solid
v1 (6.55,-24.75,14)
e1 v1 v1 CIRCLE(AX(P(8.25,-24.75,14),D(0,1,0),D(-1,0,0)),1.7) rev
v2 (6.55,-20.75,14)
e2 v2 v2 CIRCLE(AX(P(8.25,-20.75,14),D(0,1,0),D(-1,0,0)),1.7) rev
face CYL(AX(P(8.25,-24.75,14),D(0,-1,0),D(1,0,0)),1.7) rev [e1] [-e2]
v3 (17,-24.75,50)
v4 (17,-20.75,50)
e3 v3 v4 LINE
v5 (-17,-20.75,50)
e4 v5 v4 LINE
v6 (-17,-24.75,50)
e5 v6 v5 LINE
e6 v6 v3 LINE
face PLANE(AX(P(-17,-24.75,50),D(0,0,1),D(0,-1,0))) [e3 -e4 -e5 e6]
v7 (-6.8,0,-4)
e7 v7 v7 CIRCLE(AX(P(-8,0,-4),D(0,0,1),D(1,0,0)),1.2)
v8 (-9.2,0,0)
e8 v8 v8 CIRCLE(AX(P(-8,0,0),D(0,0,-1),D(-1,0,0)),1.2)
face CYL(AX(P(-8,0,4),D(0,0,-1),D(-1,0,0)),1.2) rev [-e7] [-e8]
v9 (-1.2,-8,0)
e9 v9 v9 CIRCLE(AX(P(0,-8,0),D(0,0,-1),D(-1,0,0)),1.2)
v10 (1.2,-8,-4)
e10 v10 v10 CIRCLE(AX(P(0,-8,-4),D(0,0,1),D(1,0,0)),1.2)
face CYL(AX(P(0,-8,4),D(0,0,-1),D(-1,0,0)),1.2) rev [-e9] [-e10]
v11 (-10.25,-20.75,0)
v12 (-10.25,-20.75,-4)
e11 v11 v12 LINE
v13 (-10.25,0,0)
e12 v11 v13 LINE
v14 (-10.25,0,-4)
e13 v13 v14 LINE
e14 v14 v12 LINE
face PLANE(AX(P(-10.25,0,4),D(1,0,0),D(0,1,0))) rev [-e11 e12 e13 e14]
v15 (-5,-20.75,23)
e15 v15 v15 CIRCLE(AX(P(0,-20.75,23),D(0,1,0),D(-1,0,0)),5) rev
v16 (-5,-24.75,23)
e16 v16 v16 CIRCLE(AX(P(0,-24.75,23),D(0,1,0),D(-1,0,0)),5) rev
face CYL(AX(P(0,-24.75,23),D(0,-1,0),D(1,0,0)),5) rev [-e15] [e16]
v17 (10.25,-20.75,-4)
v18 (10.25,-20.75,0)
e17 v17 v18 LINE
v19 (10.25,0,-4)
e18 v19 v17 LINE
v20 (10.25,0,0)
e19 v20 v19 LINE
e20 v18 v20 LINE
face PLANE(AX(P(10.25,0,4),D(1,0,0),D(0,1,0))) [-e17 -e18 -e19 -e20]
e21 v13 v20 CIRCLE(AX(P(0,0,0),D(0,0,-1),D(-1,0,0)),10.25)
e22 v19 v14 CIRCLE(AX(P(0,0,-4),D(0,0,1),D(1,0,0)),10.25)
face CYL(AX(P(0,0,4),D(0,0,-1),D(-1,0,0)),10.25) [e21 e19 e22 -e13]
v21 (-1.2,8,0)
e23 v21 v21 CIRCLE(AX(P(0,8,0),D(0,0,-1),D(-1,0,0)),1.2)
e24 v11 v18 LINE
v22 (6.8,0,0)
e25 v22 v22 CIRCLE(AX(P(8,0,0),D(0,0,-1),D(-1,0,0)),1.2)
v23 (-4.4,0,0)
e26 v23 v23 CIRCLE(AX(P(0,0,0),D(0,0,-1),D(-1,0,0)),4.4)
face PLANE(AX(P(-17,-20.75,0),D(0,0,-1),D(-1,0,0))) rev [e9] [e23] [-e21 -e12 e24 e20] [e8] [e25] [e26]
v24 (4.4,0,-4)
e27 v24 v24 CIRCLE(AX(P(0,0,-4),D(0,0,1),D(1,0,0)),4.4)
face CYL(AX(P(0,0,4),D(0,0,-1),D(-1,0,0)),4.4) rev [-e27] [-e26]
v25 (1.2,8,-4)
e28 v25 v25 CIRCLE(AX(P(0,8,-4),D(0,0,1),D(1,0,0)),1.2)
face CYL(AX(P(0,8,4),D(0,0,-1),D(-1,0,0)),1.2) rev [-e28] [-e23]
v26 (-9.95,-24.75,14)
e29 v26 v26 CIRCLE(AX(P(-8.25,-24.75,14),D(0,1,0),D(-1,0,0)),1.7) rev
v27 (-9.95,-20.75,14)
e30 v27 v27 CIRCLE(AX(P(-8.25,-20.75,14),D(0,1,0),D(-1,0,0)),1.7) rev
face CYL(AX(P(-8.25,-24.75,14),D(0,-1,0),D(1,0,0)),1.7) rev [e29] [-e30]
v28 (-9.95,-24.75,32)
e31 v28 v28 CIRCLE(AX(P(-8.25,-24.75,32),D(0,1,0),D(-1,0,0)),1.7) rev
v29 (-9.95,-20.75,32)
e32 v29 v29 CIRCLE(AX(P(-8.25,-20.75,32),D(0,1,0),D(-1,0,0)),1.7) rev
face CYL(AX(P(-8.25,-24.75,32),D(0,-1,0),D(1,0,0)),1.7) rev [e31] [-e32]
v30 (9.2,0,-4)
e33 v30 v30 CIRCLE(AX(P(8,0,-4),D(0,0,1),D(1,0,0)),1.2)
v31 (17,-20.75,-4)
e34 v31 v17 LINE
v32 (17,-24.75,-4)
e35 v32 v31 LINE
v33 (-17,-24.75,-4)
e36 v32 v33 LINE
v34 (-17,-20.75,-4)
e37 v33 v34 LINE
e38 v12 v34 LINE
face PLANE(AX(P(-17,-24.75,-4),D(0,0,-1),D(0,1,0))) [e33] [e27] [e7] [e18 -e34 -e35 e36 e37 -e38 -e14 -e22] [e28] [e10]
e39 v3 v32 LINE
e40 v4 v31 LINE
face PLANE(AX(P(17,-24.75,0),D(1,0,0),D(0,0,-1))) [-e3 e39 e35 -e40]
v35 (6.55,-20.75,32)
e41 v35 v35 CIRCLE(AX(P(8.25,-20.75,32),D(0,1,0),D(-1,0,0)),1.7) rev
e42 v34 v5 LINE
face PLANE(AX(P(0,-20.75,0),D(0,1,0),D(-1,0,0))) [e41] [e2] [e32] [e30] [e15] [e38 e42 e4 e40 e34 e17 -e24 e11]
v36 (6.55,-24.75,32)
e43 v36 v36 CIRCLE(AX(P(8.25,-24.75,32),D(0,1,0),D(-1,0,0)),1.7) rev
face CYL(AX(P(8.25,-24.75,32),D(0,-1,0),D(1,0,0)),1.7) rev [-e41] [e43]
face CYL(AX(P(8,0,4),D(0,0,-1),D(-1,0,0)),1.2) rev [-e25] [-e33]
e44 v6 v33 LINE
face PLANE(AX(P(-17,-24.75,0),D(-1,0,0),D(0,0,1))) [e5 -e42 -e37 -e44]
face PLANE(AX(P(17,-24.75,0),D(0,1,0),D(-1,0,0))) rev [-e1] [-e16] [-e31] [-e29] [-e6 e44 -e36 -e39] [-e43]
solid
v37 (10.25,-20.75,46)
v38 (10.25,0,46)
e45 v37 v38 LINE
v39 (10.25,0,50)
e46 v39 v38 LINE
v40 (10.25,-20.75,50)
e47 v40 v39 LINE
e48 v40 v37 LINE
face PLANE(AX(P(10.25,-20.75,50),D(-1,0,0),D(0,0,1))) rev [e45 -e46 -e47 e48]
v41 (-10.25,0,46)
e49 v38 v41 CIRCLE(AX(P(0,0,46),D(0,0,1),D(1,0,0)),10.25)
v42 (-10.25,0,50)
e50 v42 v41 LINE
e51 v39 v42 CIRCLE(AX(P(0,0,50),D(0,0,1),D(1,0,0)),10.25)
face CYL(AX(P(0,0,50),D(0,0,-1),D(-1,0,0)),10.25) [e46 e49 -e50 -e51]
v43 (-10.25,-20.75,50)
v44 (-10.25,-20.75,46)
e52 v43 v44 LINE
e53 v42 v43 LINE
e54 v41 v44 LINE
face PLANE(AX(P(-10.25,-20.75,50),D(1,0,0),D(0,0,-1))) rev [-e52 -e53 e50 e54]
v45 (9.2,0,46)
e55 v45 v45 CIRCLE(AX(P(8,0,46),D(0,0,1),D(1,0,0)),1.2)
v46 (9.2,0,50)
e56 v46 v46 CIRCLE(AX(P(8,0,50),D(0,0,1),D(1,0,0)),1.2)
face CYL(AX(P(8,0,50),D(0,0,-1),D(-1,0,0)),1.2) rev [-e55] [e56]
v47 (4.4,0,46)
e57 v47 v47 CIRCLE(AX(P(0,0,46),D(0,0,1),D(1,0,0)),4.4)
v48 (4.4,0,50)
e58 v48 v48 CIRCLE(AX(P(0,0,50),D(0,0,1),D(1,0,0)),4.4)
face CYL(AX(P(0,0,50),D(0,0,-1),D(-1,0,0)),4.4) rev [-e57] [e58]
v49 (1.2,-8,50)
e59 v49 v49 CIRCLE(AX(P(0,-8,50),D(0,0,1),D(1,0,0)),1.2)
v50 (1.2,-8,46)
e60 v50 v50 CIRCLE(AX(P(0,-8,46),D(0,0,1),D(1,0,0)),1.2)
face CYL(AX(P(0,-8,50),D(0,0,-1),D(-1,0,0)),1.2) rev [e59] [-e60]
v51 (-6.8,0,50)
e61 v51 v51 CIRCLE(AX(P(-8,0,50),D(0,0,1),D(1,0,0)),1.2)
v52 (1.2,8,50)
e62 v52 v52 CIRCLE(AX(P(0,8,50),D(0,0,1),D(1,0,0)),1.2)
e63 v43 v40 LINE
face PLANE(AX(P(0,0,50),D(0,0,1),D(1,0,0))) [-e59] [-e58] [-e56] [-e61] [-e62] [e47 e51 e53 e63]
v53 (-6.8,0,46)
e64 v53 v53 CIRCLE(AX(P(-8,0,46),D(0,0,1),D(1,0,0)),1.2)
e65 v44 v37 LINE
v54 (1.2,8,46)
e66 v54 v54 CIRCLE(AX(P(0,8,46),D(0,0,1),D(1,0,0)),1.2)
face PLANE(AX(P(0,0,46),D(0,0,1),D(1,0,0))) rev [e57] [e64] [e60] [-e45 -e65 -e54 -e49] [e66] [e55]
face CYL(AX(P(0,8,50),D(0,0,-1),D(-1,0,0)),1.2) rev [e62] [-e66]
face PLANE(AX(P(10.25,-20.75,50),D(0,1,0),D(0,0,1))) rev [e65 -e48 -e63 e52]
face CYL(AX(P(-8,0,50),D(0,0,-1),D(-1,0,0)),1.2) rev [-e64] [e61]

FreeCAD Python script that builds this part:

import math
import FreeCAD as App
import Part
import Sketcher
from FreeCAD import Vector

doc = App.newDocument("Part")
body = doc.addObject("PartDesign::Body", "Body")

# Sketch on XY plane
sketch1 = doc.addObject("Sketcher::SketchObject", "Sketch")
body.addObject(sketch1)
sketch1.AttachmentSupport = (doc.XY_Plane, [""])
sketch1.MapMode = "FlatFace"
sketch1.addGeometry([
    Part.LineSegment(Vector(-10.25, -28.75, 0), Vector(10.25, -28.75, 0)),  # 0
    Part.LineSegment(Vector(10.25, -28.75, 0), Vector(10.25, 0, 0)),  # 1
    Part.ArcOfCircle(Part.Circle(Vector(0, 0, 0), Vector(0, 0, 1), 10.25), math.radians(0), math.radians(180)),  # 2
    Part.LineSegment(Vector(-10.25, 0, 0), Vector(-10.25, -28.75, 0)),  # 3
    Part.Circle(Vector(-8, 0, 0), Vector(0, 0, 1), 1.2),  # 4
    Part.Circle(Vector(0, -8, 0), Vector(0, 0, 1), 1.2),  # 5
    Part.Circle(Vector(0, 0, 0), Vector(0, 0, 1), 4.4),  # 6
    Part.Circle(Vector(8, 0, 0), Vector(0, 0, 1), 1.2),  # 7
    Part.Circle(Vector(0, 8, 0), Vector(0, 0, 1), 1.2),  # 8
], False)
sketch1.addConstraint([
    Sketcher.Constraint("Coincident", 0, 2, 1, 1),
    Sketcher.Constraint("Tangent", 1, 2, 2, 1),
    Sketcher.Constraint("Tangent", 2, 2, 3, 1),
    Sketcher.Constraint("Coincident", 3, 2, 0, 1),
    Sketcher.Constraint("Horizontal", 0),
    Sketcher.Constraint("Vertical", 1),
    Sketcher.Constraint("Vertical", 3),
    Sketcher.Constraint("Coincident", 2, 3, -1, 1),
    Sketcher.Constraint("Coincident", 6, 3, -1, 1),
    Sketcher.Constraint("Equal", 4, 5),
    Sketcher.Constraint("Equal", 5, 7),
    Sketcher.Constraint("Equal", 7, 8),
    Sketcher.Constraint("Symmetric", 4, 3, 7, 3, -1, 1),
    Sketcher.Constraint("Symmetric", 5, 3, 8, 3, -1, 1),
    Sketcher.Constraint("PointOnObject", 4, 3, -1),
    Sketcher.Constraint("PointOnObject", 5, 3, -2),
    Sketcher.Constraint("Diameter", 4, 2.4),
    Sketcher.Constraint("Diameter", 6, 8.8),
    Sketcher.Constraint("Radius", 2, 10.25),
    Sketcher.Constraint("DistanceX", 4, 3, -1, 1, 8.0),
    Sketcher.Constraint("DistanceY", 5, 3, -1, 1, 8.0),
    Sketcher.Constraint("DistanceY", 1, 1, 1, 2, 28.75),
])
pad1 = doc.addObject("PartDesign::Pad", "Pad")
body.addObject(pad1)
pad1.Profile = sketch1
pad1.Length = 4

# Sketch on XZ plane
sketch2 = doc.addObject("Sketcher::SketchObject", "Sketch001")
body.addObject(sketch2)
sketch2.AttachmentSupport = (doc.XZ_Plane, [""])
sketch2.MapMode = "FlatFace"
sketch2.AttachmentOffset = App.Placement(Vector(0, 0, 28.75), App.Rotation())
sketch2.addGeometry([
    Part.LineSegment(Vector(17, 0, 0), Vector(17, 46, 0)),  # 0
    Part.LineSegment(Vector(17, 46, 0), Vector(-17, 46, 0)),  # 1
    Part.LineSegment(Vector(-17, 46, 0), Vector(-17, 0, 0)),  # 2
    Part.LineSegment(Vector(-17, 0, 0), Vector(17, 0, 0)),  # 3
    Part.Circle(Vector(8.25, 32, 0), Vector(0, 0, 1), 1.7),  # 4
    Part.Circle(Vector(-8.25, 32, 0), Vector(0, 0, 1), 1.7),  # 5
    Part.Circle(Vector(8.25, 14, 0), Vector(0, 0, 1), 1.7),  # 6
    Part.Circle(Vector(0, 23, 0), Vector(0, 0, 1), 5),  # 7
    Part.Circle(Vector(-8.25, 14, 0), Vector(0, 0, 1), 1.7),  # 8
], False)
sketch2.addConstraint([
    Sketcher.Constraint("Coincident", 0, 2, 1, 1),
    Sketcher.Constraint("Coincident", 1, 2, 2, 1),
    Sketcher.Constraint("Coincident", 2, 2, 3, 1),
    Sketcher.Constraint("Coincident", 3, 2, 0, 1),
    Sketcher.Constraint("Vertical", 0),
    Sketcher.Constraint("Horizontal", 1),
    Sketcher.Constraint("Vertical", 2),
    Sketcher.Constraint("Horizontal", 3),
    Sketcher.Constraint("Equal", 4, 5),
    Sketcher.Constraint("Equal", 5, 6),
    Sketcher.Constraint("Equal", 6, 8),
    Sketcher.Constraint("Symmetric", 2, 2, 3, 2, -1, 1),
    Sketcher.Constraint("Symmetric", 4, 3, 5, 3, -2),
    Sketcher.Constraint("Symmetric", 6, 3, 8, 3, -2),
    Sketcher.Constraint("PointOnObject", 7, 3, -2),
    Sketcher.Constraint("Vertical", 4, 3, 6, 3),
    Sketcher.Constraint("Diameter", 7, 10.0),
    Sketcher.Constraint("Diameter", 4, 3.4),
    Sketcher.Constraint("DistanceX", 1, 2, 1, 1, 34.0),
    Sketcher.Constraint("DistanceY", 0, 1, 0, 2, 46.0),
    Sketcher.Constraint("DistanceY", -1, 1, 4, 3, 32.0),
    Sketcher.Constraint("DistanceY", -1, 1, 6, 3, 14.0),
    Sketcher.Constraint("DistanceY", -1, 1, 7, 3, 23.0),
    Sketcher.Constraint("DistanceX", 5, 3, 4, 3, 16.5),
])
pad2 = doc.addObject("PartDesign::Pad", "Pad001")
body.addObject(pad2)
pad2.Profile = sketch2
pad2.Length = 4
pad2.Reversed = True
doc.recompute()

datumplane = doc.addObject("PartDesign::Plane", "DatumPlane")
body.addObject(datumplane)
datumplane.AttachmentSupport = (doc.XY_Plane, [""])
datumplane.MapMode = "FlatFace"
datumplane.AttachmentOffset = App.Placement(Vector(0, 0, 23), App.Rotation())
mirrored = doc.addObject("PartDesign::Mirrored", "Mirrored")
body.addObject(mirrored)
mirrored.Originals = [pad1]
mirrored.MirrorPlane = (datumplane, [""])
body.Tip = mirrored

# Sketch on XZ plane
sketch3 = doc.addObject("Sketcher::SketchObject", "Sketch002")
body.addObject(sketch3)
sketch3.AttachmentSupport = (doc.XZ_Plane, [""])
sketch3.MapMode = "FlatFace"
sketch3.AttachmentOffset = App.Placement(Vector(0, 0, 24.75), App.Rotation())
sketch3.addGeometry([
    Part.LineSegment(Vector(-10.25, 42, 0), Vector(10.25, 42, 0)),  # 0
    Part.LineSegment(Vector(10.25, 42, 0), Vector(10.25, 46, 0)),  # 1
    Part.LineSegment(Vector(10.25, 46, 0), Vector(17, 46, 0)),  # 2
    Part.LineSegment(Vector(17, 46, 0), Vector(17, 0, 0)),  # 3
    Part.LineSegment(Vector(17, 0, 0), Vector(10.25, 0, 0)),  # 4
    Part.LineSegment(Vector(10.25, 0, 0), Vector(10.25, 4, 0)),  # 5
    Part.LineSegment(Vector(10.25, 4, 0), Vector(-10.25, 4, 0)),  # 6
    Part.LineSegment(Vector(-10.25, 4, 0), Vector(-10.25, 0, 0)),  # 7
    Part.LineSegment(Vector(-10.25, 0, 0), Vector(-17, 0, 0)),  # 8
    Part.LineSegment(Vector(-17, 0, 0), Vector(-17, 46, 0)),  # 9
    Part.LineSegment(Vector(-17, 46, 0), Vector(-10.25, 46, 0)),  # 10
    Part.LineSegment(Vector(-10.25, 46, 0), Vector(-10.25, 42, 0)),  # 11
    Part.Circle(Vector(-8.25, 32, 0), Vector(0, 0, 1), 1.7),  # 12
    Part.Circle(Vector(8.25, 32, 0), Vector(0, 0, 1), 1.7),  # 13
    Part.Circle(Vector(-8.25, 14, 0), Vector(0, 0, 1), 1.7),  # 14
    Part.Circle(Vector(0, 23, 0), Vector(0, 0, 1), 5),  # 15
    Part.Circle(Vector(8.25, 14, 0), Vector(0, 0, 1), 1.7),  # 16
], False)
sketch3.addConstraint([
    Sketcher.Constraint("Coincident", 0, 2, 1, 1),
    Sketcher.Constraint("Coincident", 1, 2, 2, 1),
    Sketcher.Constraint("Coincident", 2, 2, 3, 1),
    Sketcher.Constraint("Coincident", 3, 2, 4, 1),
    Sketcher.Constraint("Coincident", 4, 2, 5, 1),
    Sketcher.Constraint("Coincident", 5, 2, 6, 1),
    Sketcher.Constraint("Coincident", 6, 2, 7, 1),
    Sketcher.Constraint("Coincident", 7, 2, 8, 1),
    Sketcher.Constraint("Coincident", 8, 2, 9, 1),
    Sketcher.Constraint("Coincident", 9, 2, 10, 1),
    Sketcher.Constraint("Coincident", 10, 2, 11, 1),
    Sketcher.Constraint("Coincident", 11, 2, 0, 1),
    Sketcher.Constraint("Horizontal", 0),
    Sketcher.Constraint("Vertical", 1),
    Sketcher.Constraint("Horizontal", 2),
    Sketcher.Constraint("Vertical", 3),
    Sketcher.Constraint("Horizontal", 4),
    Sketcher.Constraint("Vertical", 5),
    Sketcher.Constraint("Horizontal", 6),
    Sketcher.Constraint("Vertical", 7),
    Sketcher.Constraint("Horizontal", 8),
    Sketcher.Constraint("Vertical", 9),
    Sketcher.Constraint("Horizontal", 10),
    Sketcher.Constraint("Vertical", 11),
    Sketcher.Constraint("Equal", 12, 13),
    Sketcher.Constraint("Equal", 13, 14),
    Sketcher.Constraint("Equal", 14, 16),
    Sketcher.Constraint("Symmetric", 4, 2, 7, 2, -1, 1),
    Sketcher.Constraint("Symmetric", 12, 3, 13, 3, -2),
    Sketcher.Constraint("Symmetric", 14, 3, 16, 3, -2),
    Sketcher.Constraint("Symmetric", 3, 2, 8, 2, -2),
    Sketcher.Constraint("Symmetric", 1, 2, 10, 2, -2),
    Sketcher.Constraint("PointOnObject", 15, 3, -2),
    Sketcher.Constraint("Vertical", 12, 3, 14, 3),
    Sketcher.Constraint("Vertical", 1, 2, 4, 2),
    Sketcher.Constraint("Equal", 1, 5),
    Sketcher.Constraint("Diameter", 15, 10.0),
    Sketcher.Constraint("Diameter", 12, 3.4),
    Sketcher.Constraint("DistanceY", 1, 1, 1, 2, 4.0),
    Sketcher.Constraint("DistanceY", 3, 2, 3, 1, 46.0),
    Sketcher.Constraint("DistanceX", 0, 1, 0, 2, 20.5),
    Sketcher.Constraint("DistanceY", -1, 1, 12, 3, 32.0),
    Sketcher.Constraint("DistanceY", -1, 1, 14, 3, 14.0),
    Sketcher.Constraint("DistanceY", -1, 1, 15, 3, 23.0),
    Sketcher.Constraint("DistanceX", -1, 1, 2, 2, 17.0),
    Sketcher.Constraint("DistanceX", 13, 3, 0, 2, 2.0),
])
pad3 = doc.addObject("PartDesign::Pad", "Pad002")
body.addObject(pad3)
pad3.Profile = sketch3
pad3.Length = 4
pad3.Reversed = True

# Sketch on YZ plane
sketch4 = doc.addObject("Sketcher::SketchObject", "Sketch003")
body.addObject(sketch4)
sketch4.AttachmentSupport = (doc.YZ_Plane, [""])
sketch4.MapMode = "FlatFace"
sketch4.AttachmentOffset = App.Placement(Vector(0, 0, -17), App.Rotation())
sketch4.addGeometry([
    Part.LineSegment(Vector(-24.75, 0, 0), Vector(-28.75, 0, 0)),
    Part.LineSegment(Vector(-28.75, 0, 0), Vector(-28.75, 46, 0)),
    Part.LineSegment(Vector(-28.75, 46, 0), Vector(-24.75, 46, 0)),
    Part.LineSegment(Vector(-24.75, 46, 0), Vector(-24.75, 0, 0)),
], False)
sketch4.addConstraint([
    Sketcher.Constraint("Coincident", 0, 2, 1, 1),
    Sketcher.Constraint("Coincident", 1, 2, 2, 1),
    Sketcher.Constraint("Coincident", 2, 2, 3, 1),
    Sketcher.Constraint("Coincident", 3, 2, 0, 1),
    Sketcher.Constraint("Horizontal", 0),
    Sketcher.Constraint("Vertical", 1),
    Sketcher.Constraint("Horizontal", 2),
    Sketcher.Constraint("Vertical", 3),
    Sketcher.Constraint("PointOnObject", 0, 2, -1),
    Sketcher.Constraint("DistanceX", 0, 2, 0, 1, 4.0),
    Sketcher.Constraint("DistanceY", 1, 1, 1, 2, 46.0),
    Sketcher.Constraint("DistanceX", 0, 2, -1, 1, 28.75),
])
pocket1 = doc.addObject("PartDesign::Pocket", "Pocket")
body.addObject(pocket1)
pocket1.Profile = sketch4
pocket1.Type = "ThroughAll"
pocket1.Reversed = True

# Sketch on XZ plane
sketch5 = doc.addObject("Sketcher::SketchObject", "Sketch004")
body.addObject(sketch5)
sketch5.AttachmentSupport = (doc.XZ_Plane, [""])
sketch5.MapMode = "FlatFace"
sketch5.AttachmentOffset = App.Placement(Vector(0, 0, 20.75), App.Rotation())
sketch5.addGeometry([
    Part.LineSegment(Vector(-17, -4, 0), Vector(-17, 0, 0)),  # 0
    Part.LineSegment(Vector(-17, 0, 0), Vector(17, 0, 0)),  # 1
    Part.LineSegment(Vector(17, 0, 0), Vector(17, -4, 0)),  # 2
    Part.LineSegment(Vector(17, -4, 0), Vector(-17, -4, 0)),  # 3
    Part.LineSegment(Vector(-17, 46, 0), Vector(-17, 50, 0)),  # 4
    Part.LineSegment(Vector(-17, 50, 0), Vector(17, 50, 0)),  # 5
    Part.LineSegment(Vector(17, 50, 0), Vector(17, 46, 0)),  # 6
    Part.LineSegment(Vector(17, 46, 0), Vector(-17, 46, 0)),  # 7
], False)
sketch5.addConstraint([
    Sketcher.Constraint("Coincident", 0, 2, 1, 1),
    Sketcher.Constraint("Coincident", 1, 2, 2, 1),
    Sketcher.Constraint("Coincident", 2, 2, 3, 1),
    Sketcher.Constraint("Coincident", 3, 2, 0, 1),
    Sketcher.Constraint("Coincident", 4, 2, 5, 1),
    Sketcher.Constraint("Coincident", 5, 2, 6, 1),
    Sketcher.Constraint("Coincident", 6, 2, 7, 1),
    Sketcher.Constraint("Coincident", 7, 2, 4, 1),
    Sketcher.Constraint("Vertical", 0),
    Sketcher.Constraint("Horizontal", 1),
    Sketcher.Constraint("Vertical", 2),
    Sketcher.Constraint("Horizontal", 3),
    Sketcher.Constraint("Vertical", 4),
    Sketcher.Constraint("Horizontal", 5),
    Sketcher.Constraint("Vertical", 6),
    Sketcher.Constraint("Horizontal", 7),
    Sketcher.Constraint("Symmetric", 0, 2, 1, 2, -1, 1),
    Sketcher.Constraint("Vertical", 3, 2, 4, 2),
    Sketcher.Constraint("Vertical", 2, 2, 5, 2),
    Sketcher.Constraint("Equal", 2, 4),
    Sketcher.Constraint("DistanceX", 1, 1, 1, 2, 34.0),
    Sketcher.Constraint("DistanceY", 0, 1, 0, 2, 4.0),
    Sketcher.Constraint("DistanceY", -1, 1, 4, 2, 50.0),
])
pad4 = doc.addObject("PartDesign::Pad", "Pad003")
body.addObject(pad4)
pad4.Profile = sketch5
pad4.Length = 4
doc.recompute()

mirrored2 = doc.addObject("PartDesign::Mirrored", "Mirrored001")
body.addObject(mirrored2)
mirrored2.Originals = [pad1]
mirrored2.MirrorPlane = (doc.XY_Plane, [""])
body.Tip = mirrored2

# Sketch on YZ plane
sketch6 = doc.addObject("Sketcher::SketchObject", "Sketch005")
body.addObject(sketch6)
sketch6.AttachmentSupport = (doc.YZ_Plane, [""])
sketch6.MapMode = "FlatFace"
sketch6.AttachmentOffset = App.Placement(Vector(0, 0, 17), App.Rotation())
sketch6.addGeometry([
    Part.LineSegment(Vector(10.25, 46, 0), Vector(-20.75, 46, 0)),  # 0
    Part.LineSegment(Vector(-20.75, 46, 0), Vector(-20.75, 0, 0)),  # 1
    Part.LineSegment(Vector(-20.75, 0, 0), Vector(10.25, 0, 0)),  # 2
    Part.LineSegment(Vector(10.25, 0, 0), Vector(10.25, 46, 0)),  # 3
    Part.LineSegment(Vector(-24.75, 0, 0), Vector(-28.75, 0, 0)),  # 4
    Part.LineSegment(Vector(-28.75, 0, 0), Vector(-28.75, -4, 0)),  # 5
    Part.LineSegment(Vector(-28.75, -4, 0), Vector(-24.75, -4, 0)),  # 6
    Part.LineSegment(Vector(-24.75, -4, 0), Vector(-24.75, 0, 0)),  # 7
], False)
sketch6.addConstraint([
    Sketcher.Constraint("Coincident", 0, 2, 1, 1),
    Sketcher.Constraint("Coincident", 1, 2, 2, 1),
    Sketcher.Constraint("Coincident", 2, 2, 3, 1),
    Sketcher.Constraint("Coincident", 3, 2, 0, 1),
    Sketcher.Constraint("Coincident", 4, 2, 5, 1),
    Sketcher.Constraint("Coincident", 5, 2, 6, 1),
    Sketcher.Constraint("Coincident", 6, 2, 7, 1),
    Sketcher.Constraint("Coincident", 7, 2, 4, 1),
    Sketcher.Constraint("Horizontal", 0),
    Sketcher.Constraint("Vertical", 1),
    Sketcher.Constraint("Horizontal", 2),
    Sketcher.Constraint("Vertical", 3),
    Sketcher.Constraint("Horizontal", 4),
    Sketcher.Constraint("Vertical", 5),
    Sketcher.Constraint("Horizontal", 6),
    Sketcher.Constraint("Vertical", 7),
    Sketcher.Constraint("PointOnObject", 1, 2, -1),
    Sketcher.Constraint("PointOnObject", 4, 2, -1),
    Sketcher.Constraint("Equal", 6, 5),
    Sketcher.Constraint("DistanceX", 0, 2, 0, 1, 31.0),
    Sketcher.Constraint("DistanceX", 4, 2, 4, 1, 4.0),
    Sketcher.Constraint("DistanceY", 1, 2, 1, 1, 46.0),
    Sketcher.Constraint("DistanceX", 4, 2, 1, 2, 8.0),
    Sketcher.Constraint("DistanceX", 0, 2, -1, 1, 20.75),
])
pocket2 = doc.addObject("PartDesign::Pocket", "Pocket001")
body.addObject(pocket2)
pocket2.Profile = sketch6
pocket2.Type = "ThroughAll"
body2 = doc.addObject("PartDesign::Body", "Body001")

# Sketch on XY plane
sketch7 = doc.addObject("Sketcher::SketchObject", "Sketch006")
body2.addObject(sketch7)
sketch7.AttachmentSupport = (doc.getObject("XY_Plane001"), [""])
sketch7.MapMode = "FlatFace"
sketch7.AttachmentOffset = App.Placement(Vector(0, 0, 46), App.Rotation())
sketch7.addGeometry([
    Part.LineSegment(Vector(-10.25, -20.75, 0), Vector(10.25, -20.75, 0)),  # 0
    Part.LineSegment(Vector(10.25, -20.75, 0), Vector(10.25, 0, 0)),  # 1
    Part.ArcOfCircle(Part.Circle(Vector(0, 0, 0), Vector(0, 0, 1), 10.25), math.radians(0), math.radians(180)),  # 2
    Part.LineSegment(Vector(-10.25, 0, 0), Vector(-10.25, -20.75, 0)),  # 3
    Part.Circle(Vector(8, 0, 0), Vector(0, 0, 1), 1.2),  # 4
    Part.Circle(Vector(0, -8, 0), Vector(0, 0, 1), 1.2),  # 5
    Part.Circle(Vector(0, 0, 0), Vector(0, 0, 1), 4.4),  # 6
    Part.Circle(Vector(-8, 0, 0), Vector(0, 0, 1), 1.2),  # 7
    Part.Circle(Vector(0, 8, 0), Vector(0, 0, 1), 1.2),  # 8
], False)
sketch7.addConstraint([
    Sketcher.Constraint("Coincident", 0, 2, 1, 1),
    Sketcher.Constraint("Tangent", 1, 2, 2, 1),
    Sketcher.Constraint("Tangent", 2, 2, 3, 1),
    Sketcher.Constraint("Coincident", 3, 2, 0, 1),
    Sketcher.Constraint("Horizontal", 0),
    Sketcher.Constraint("Vertical", 1),
    Sketcher.Constraint("Vertical", 3),
    Sketcher.Constraint("Coincident", 2, 3, -1, 1),
    Sketcher.Constraint("Coincident", 6, 3, -1, 1),
    Sketcher.Constraint("Equal", 4, 5),
    Sketcher.Constraint("Equal", 5, 7),
    Sketcher.Constraint("Equal", 7, 8),
    Sketcher.Constraint("Symmetric", 4, 3, 7, 3, -1, 1),
    Sketcher.Constraint("Symmetric", 5, 3, 8, 3, -1, 1),
    Sketcher.Constraint("PointOnObject", 4, 3, -1),
    Sketcher.Constraint("PointOnObject", 5, 3, -2),
    Sketcher.Constraint("Diameter", 4, 2.4),
    Sketcher.Constraint("Diameter", 6, 8.8),
    Sketcher.Constraint("Radius", 2, 10.25),
    Sketcher.Constraint("DistanceX", -1, 1, 4, 3, 8.0),
    Sketcher.Constraint("DistanceY", 5, 3, -1, 1, 8.0),
    Sketcher.Constraint("DistanceY", 1, 1, 1, 2, 20.75),
])
pad5 = doc.addObject("PartDesign::Pad", "Pad004")
body2.addObject(pad5)
pad5.Profile = sketch7
pad5.Length = 4

doc.recompute()
